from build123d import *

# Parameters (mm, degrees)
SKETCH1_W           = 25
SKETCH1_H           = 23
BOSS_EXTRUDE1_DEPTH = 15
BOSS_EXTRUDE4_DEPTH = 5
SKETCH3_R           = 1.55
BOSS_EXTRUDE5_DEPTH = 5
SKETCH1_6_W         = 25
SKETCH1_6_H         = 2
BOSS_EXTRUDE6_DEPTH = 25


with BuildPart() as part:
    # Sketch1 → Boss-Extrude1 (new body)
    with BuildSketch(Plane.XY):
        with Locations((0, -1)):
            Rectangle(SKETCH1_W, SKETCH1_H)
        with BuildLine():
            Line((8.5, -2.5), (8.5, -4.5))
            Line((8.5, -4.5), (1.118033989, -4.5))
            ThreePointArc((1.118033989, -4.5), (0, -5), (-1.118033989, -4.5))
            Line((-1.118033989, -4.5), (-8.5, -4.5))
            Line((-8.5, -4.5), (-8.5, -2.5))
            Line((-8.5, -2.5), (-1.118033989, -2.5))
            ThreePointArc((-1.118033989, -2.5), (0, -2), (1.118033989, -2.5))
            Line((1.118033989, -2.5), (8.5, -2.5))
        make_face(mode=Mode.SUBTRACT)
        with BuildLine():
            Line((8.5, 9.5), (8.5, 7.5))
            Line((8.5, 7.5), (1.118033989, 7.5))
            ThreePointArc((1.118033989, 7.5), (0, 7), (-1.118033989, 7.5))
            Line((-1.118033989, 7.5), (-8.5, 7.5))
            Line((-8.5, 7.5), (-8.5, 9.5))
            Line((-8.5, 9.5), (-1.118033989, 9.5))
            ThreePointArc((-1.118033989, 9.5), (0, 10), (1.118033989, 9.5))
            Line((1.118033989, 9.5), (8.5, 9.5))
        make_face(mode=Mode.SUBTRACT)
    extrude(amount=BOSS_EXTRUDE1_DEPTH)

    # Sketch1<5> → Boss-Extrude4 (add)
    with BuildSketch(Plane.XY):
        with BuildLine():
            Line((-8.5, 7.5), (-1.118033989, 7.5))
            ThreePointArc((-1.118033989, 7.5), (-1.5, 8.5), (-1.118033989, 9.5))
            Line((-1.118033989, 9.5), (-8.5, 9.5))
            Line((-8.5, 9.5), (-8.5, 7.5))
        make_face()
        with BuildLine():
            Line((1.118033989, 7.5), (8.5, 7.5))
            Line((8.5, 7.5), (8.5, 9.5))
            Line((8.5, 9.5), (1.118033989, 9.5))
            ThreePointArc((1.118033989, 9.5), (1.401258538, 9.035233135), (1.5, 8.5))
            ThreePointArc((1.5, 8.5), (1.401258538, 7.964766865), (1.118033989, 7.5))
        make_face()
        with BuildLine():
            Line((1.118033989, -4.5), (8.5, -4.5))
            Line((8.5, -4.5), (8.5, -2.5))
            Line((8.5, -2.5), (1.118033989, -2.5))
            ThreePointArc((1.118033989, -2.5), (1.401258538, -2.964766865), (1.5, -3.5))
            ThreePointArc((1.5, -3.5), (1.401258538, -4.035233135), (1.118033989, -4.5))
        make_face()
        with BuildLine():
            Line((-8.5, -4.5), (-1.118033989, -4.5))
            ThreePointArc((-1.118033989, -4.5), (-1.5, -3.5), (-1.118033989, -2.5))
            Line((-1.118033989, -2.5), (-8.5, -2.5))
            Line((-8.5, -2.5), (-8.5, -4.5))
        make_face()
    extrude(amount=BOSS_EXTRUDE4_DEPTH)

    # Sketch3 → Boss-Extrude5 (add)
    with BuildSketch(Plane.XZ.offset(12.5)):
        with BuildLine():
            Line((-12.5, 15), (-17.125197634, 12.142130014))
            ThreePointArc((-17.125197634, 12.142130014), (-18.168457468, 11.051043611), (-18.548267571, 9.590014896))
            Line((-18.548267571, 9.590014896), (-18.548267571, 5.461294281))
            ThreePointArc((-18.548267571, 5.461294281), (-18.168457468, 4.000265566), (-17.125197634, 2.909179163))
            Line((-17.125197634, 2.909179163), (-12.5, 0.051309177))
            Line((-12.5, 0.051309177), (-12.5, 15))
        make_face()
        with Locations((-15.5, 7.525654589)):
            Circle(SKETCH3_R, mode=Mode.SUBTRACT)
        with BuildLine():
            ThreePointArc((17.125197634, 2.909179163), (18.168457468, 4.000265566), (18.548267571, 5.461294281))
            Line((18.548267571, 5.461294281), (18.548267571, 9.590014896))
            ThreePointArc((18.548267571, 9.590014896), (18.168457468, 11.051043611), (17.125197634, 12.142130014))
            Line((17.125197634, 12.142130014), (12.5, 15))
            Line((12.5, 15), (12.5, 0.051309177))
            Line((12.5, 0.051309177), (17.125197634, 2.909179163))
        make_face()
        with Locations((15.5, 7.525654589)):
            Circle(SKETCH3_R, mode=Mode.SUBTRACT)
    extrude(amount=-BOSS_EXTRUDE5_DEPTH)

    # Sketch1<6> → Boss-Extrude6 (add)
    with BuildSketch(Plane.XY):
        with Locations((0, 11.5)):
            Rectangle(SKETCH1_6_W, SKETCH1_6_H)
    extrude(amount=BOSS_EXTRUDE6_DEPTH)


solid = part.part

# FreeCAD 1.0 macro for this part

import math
import FreeCAD as App
import Part
import Sketcher
from FreeCAD import Vector

doc = App.newDocument("Part")
params = doc.addObject("Spreadsheet::Sheet", "Params")
for row, (alias, value) in enumerate([
    ("sketch1_radius", "1.5 mm"),
    ("sketch1_width", "25 mm"),
    ("sketch1_height", "23 mm"),
    ("sketch1_height2", "2 mm"),
    ("pad1_length", "15 mm"),
    ("sketch2_radius", "1.5 mm"),
    ("sketch2_height", "2 mm"),
    ("pad2_length", "5 mm"),
    ("sketch3_radius", "3 mm"),
    ("sketch3_diameter", "3.1 mm"),
    ("pad3_length", "5 mm"),
    ("sketch4_width", "25 mm"),
    ("sketch4_height", "2 mm"),
    ("pad4_length", "25 mm"),
], start=1):
    params.set(f"A{row}", alias)
    params.set(f"B{row}", "=" + value)
    params.setAlias(f"B{row}", alias)

body = doc.addObject("PartDesign::Body", "Body")

sketch1 = body.newObject("Sketcher::SketchObject", "Sketch")
sketch1.AttachmentSupport = (doc.getObject("XY_Plane"), [""])
sketch1.MapMode = "FlatFace"
sketch1.addGeometry(Part.LineSegment(Vector(-12.5, 10.5, 0), Vector(-12.5, -12.5, 0)), False)
sketch1.addGeometry(Part.LineSegment(Vector(-12.5, -12.5, 0), Vector(12.5, -12.5, 0)), False)
sketch1.addGeometry(Part.LineSegment(Vector(12.5, -12.5, 0), Vector(12.5, 10.5, 0)), False)
sketch1.addGeometry(Part.LineSegment(Vector(12.5, 10.5, 0), Vector(-12.5, 10.5, 0)), False)
sketch1.addGeometry(Part.LineSegment(Vector(1.1, -2.5, 0), Vector(8.5, -2.5, 0)), False)
sketch1.addGeometry(Part.LineSegment(Vector(8.5, -2.5, 0), Vector(8.5, -4.5, 0)), False)
sketch1.addGeometry(Part.LineSegment(Vector(8.5, -4.5, 0), Vector(1.1, -4.5, 0)), False)
sketch1.addGeometry(Part.ArcOfCircle(Part.Circle(Vector(0, -3.5, 0), Vector(0, 0, 1), 1.5), math.radians(-138), math.radians(-42)), False)
sketch1.addGeometry(Part.LineSegment(Vector(-1.1, -4.5, 0), Vector(-8.5, -4.5, 0)), False)
sketch1.addGeometry(Part.LineSegment(Vector(-8.5, -4.5, 0), Vector(-8.5, -2.5, 0)), False)
sketch1.addGeometry(Part.LineSegment(Vector(-8.5, -2.5, 0), Vector(-1.1, -2.5, 0)), False)
sketch1.addGeometry(Part.ArcOfCircle(Part.Circle(Vector(0, -3.5, 0), Vector(0, 0, 1), 1.5), math.radians(42), math.radians(138)), False)
sketch1.addGeometry(Part.LineSegment(Vector(1.1, 9.5, 0), Vector(8.5, 9.5, 0)), False)
sketch1.addGeometry(Part.LineSegment(Vector(8.5, 9.5, 0), Vector(8.5, 7.5, 0)), False)
sketch1.addGeometry(Part.LineSegment(Vector(8.5, 7.5, 0), Vector(1.1, 7.5, 0)), False)
sketch1.addGeometry(Part.ArcOfCircle(Part.Circle(Vector(0, 8.5, 0), Vector(0, 0, 1), 1.5), math.radians(-138), math.radians(-42)), False)
sketch1.addGeometry(Part.LineSegment(Vector(-1.1, 7.5, 0), Vector(-8.5, 7.5, 0)), False)
sketch1.addGeometry(Part.LineSegment(Vector(-8.5, 7.5, 0), Vector(-8.5, 9.5, 0)), False)
sketch1.addGeometry(Part.LineSegment(Vector(-8.5, 9.5, 0), Vector(-1.1, 9.5, 0)), False)
sketch1.addGeometry(Part.ArcOfCircle(Part.Circle(Vector(0, 8.5, 0), Vector(0, 0, 1), 1.5), math.radians(42), math.radians(138)), False)
sketch1.addConstraint(Sketcher.Constraint("Coincident", 0, 2, 1, 1))
sketch1.addConstraint(Sketcher.Constraint("Coincident", 1, 2, 2, 1))
sketch1.addConstraint(Sketcher.Constraint("Coincident", 2, 2, 3, 1))
sketch1.addConstraint(Sketcher.Constraint("Coincident", 3, 2, 0, 1))
sketch1.addConstraint(Sketcher.Constraint("Coincident", 4, 2, 5, 1))
sketch1.addConstraint(Sketcher.Constraint("Coincident", 5, 2, 6, 1))
sketch1.addConstraint(Sketcher.Constraint("Coincident", 6, 2, 7, 2))
sketch1.addConstraint(Sketcher.Constraint("Coincident", 7, 1, 8, 1))
sketch1.addConstraint(Sketcher.Constraint("Coincident", 8, 2, 9, 1))
sketch1.addConstraint(Sketcher.Constraint("Coincident", 9, 2, 10, 1))
sketch1.addConstraint(Sketcher.Constraint("Coincident", 10, 2, 11, 2))
sketch1.addConstraint(Sketcher.Constraint("Coincident", 11, 1, 4, 1))
sketch1.addConstraint(Sketcher.Constraint("Coincident", 12, 2, 13, 1))
sketch1.addConstraint(Sketcher.Constraint("Coincident", 13, 2, 14, 1))
sketch1.addConstraint(Sketcher.Constraint("Coincident", 14, 2, 15, 2))
sketch1.addConstraint(Sketcher.Constraint("Coincident", 15, 1, 16, 1))
sketch1.addConstraint(Sketcher.Constraint("Coincident", 16, 2, 17, 1))
sketch1.addConstraint(Sketcher.Constraint("Coincident", 17, 2, 18, 1))
sketch1.addConstraint(Sketcher.Constraint("Coincident", 18, 2, 19, 2))
sketch1.addConstraint(Sketcher.Constraint("Coincident", 19, 1, 12, 1))
sketch1.addConstraint(Sketcher.Constraint("Vertical", 0))
sketch1.addConstraint(Sketcher.Constraint("Horizontal", 1))
sketch1.addConstraint(Sketcher.Constraint("Vertical", 2))
sketch1.addConstraint(Sketcher.Constraint("Horizontal", 3))
sketch1.addConstraint(Sketcher.Constraint("Horizontal", 4))
sketch1.addConstraint(Sketcher.Constraint("Vertical", 5))
sketch1.addConstraint(Sketcher.Constraint("Horizontal", 6))
sketch1.addConstraint(Sketcher.Constraint("Horizontal", 8))
sketch1.addConstraint(Sketcher.Constraint("Vertical", 9))
sketch1.addConstraint(Sketcher.Constraint("Horizontal", 10))
sketch1.addConstraint(Sketcher.Constraint("Horizontal", 12))
sketch1.addConstraint(Sketcher.Constraint("Vertical", 13))
sketch1.addConstraint(Sketcher.Constraint("Horizontal", 14))
sketch1.addConstraint(Sketcher.Constraint("Horizontal", 16))
sketch1.addConstraint(Sketcher.Constraint("Vertical", 17))
sketch1.addConstraint(Sketcher.Constraint("Horizontal", 18))
sketch1.addConstraint(Sketcher.Constraint("Coincident", 11, 3, 7, 3))
sketch1.addConstraint(Sketcher.Constraint("Coincident", 19, 3, 15, 3))
sketch1.addConstraint(Sketcher.Constraint("Equal", 7, 11))
sketch1.addConstraint(Sketcher.Constraint("Equal", 11, 15))
sketch1.addConstraint(Sketcher.Constraint("Equal", 15, 19))
sketch1.addConstraint(Sketcher.Constraint("Symmetric", 6, 2, 7, 1, -2))
sketch1.addConstraint(Sketcher.Constraint("Symmetric", 4, 2, 9, 2, -2))
sketch1.addConstraint(Sketcher.Constraint("Symmetric", 14, 2, 15, 1, -2))
sketch1.addConstraint(Sketcher.Constraint("Symmetric", 12, 2, 17, 2, -2))
sketch1.addConstraint(Sketcher.Constraint("Vertical", 7, 1, 10, 2))
sketch1.addConstraint(Sketcher.Constraint("Vertical", 5, 2, 12, 2))
sketch1.addConstraint(Sketcher.Constraint("Vertical", 11, 1, 14, 2))
sketch1.addConstraint(Sketcher.Constraint("Vertical", 15, 1, 18, 2))
sketch1.addConstraint(Sketcher.Constraint("Radius", 7, 1.5))
sketch1.addConstraint(Sketcher.Constraint("DistanceX", 1, 1, 1, 2, 25.0))
sketch1.addConstraint(Sketcher.Constraint("DistanceY", 0, 2, 0, 1, 23.0))
sketch1.addConstraint(Sketcher.Constraint("DistanceY", 5, 2, 5, 1, 2.0))
sketch1.addConstraint(Sketcher.Constraint("DistanceY", 7, 3, 15, 3, 12.0))
sketch1.addConstraint(Sketcher.Constraint("DistanceY", 0, 2, 11, 3, 9.0))
sketch1.addConstraint(Sketcher.Constraint("DistanceX", 4, 2, 1, 2, 4.0))
sketch1.addConstraint(Sketcher.Constraint("DistanceX", 0, 2, 8, 2, 4.0))
sketch1.addConstraint(Sketcher.Constraint("DistanceY", 7, 3, -1, 1, 3.5))
sketch1.setExpression("Constraints[49]", "Params.sketch1_radius")
sketch1.setExpression("Constraints[50]", "Params.sketch1_width")
sketch1.setExpression("Constraints[51]", "Params.sketch1_height")
sketch1.setExpression("Constraints[52]", "Params.sketch1_height2")
pad1 = body.newObject("PartDesign::Pad", "Pad")
pad1.Profile = sketch1
pad1.setExpression("Length", "Params.pad1_length")

sketch2 = body.newObject("Sketcher::SketchObject", "Sketch001")
sketch2.AttachmentSupport = (doc.getObject("XY_Plane"), [""])
sketch2.MapMode = "FlatFace"
sketch2.addGeometry(Part.LineSegment(Vector(-8.5, 7.5, 0), Vector(-1.1, 7.5, 0)), False)
sketch2.addGeometry(Part.ArcOfCircle(Part.Circle(Vector(0, 8.5, 0), Vector(0, 0, 1), 1.5), math.radians(138), math.radians(222)), False)
sketch2.addGeometry(Part.LineSegment(Vector(-1.1, 9.5, 0), Vector(-8.5, 9.5, 0)), False)
sketch2.addGeometry(Part.LineSegment(Vector(-8.5, 9.5, 0), Vector(-8.5, 7.5, 0)), False)
sketch2.addGeometry(Part.LineSegment(Vector(1.1, 7.5, 0), Vector(8.5, 7.5, 0)), False)
sketch2.addGeometry(Part.LineSegment(Vector(8.5, 7.5, 0), Vector(8.5, 9.5, 0)), False)
sketch2.addGeometry(Part.LineSegment(Vector(8.5, 9.5, 0), Vector(1.1, 9.5, 0)), False)
sketch2.addGeometry(Part.ArcOfCircle(Part.Circle(Vector(0, 8.5, 0), Vector(0, 0, 1), 1.5), math.radians(0), math.radians(42)), False)
sketch2.addGeometry(Part.ArcOfCircle(Part.Circle(Vector(0, 8.5, 0), Vector(0, 0, 1), 1.5), math.radians(-42), math.radians(0)), False)
sketch2.addGeometry(Part.LineSegment(Vector(1.1, -4.5, 0), Vector(8.5, -4.5, 0)), False)
sketch2.addGeometry(Part.LineSegment(Vector(8.5, -4.5, 0), Vector(8.5, -2.5, 0)), False)
sketch2.addGeometry(Part.LineSegment(Vector(8.5, -2.5, 0), Vector(1.1, -2.5, 0)), False)
sketch2.addGeometry(Part.ArcOfCircle(Part.Circle(Vector(0, -3.5, 0), Vector(0, 0, 1), 1.5), math.radians(0), math.radians(42)), False)
sketch2.addGeometry(Part.ArcOfCircle(Part.Circle(Vector(0, -3.5, 0), Vector(0, 0, 1), 1.5), math.radians(-42), math.radians(0)), False)
sketch2.addGeometry(Part.LineSegment(Vector(-8.5, -4.5, 0), Vector(-1.1, -4.5, 0)), False)
sketch2.addGeometry(Part.ArcOfCircle(Part.Circle(Vector(0, -3.5, 0), Vector(0, 0, 1), 1.5), math.radians(138), math.radians(222)), False)
sketch2.addGeometry(Part.LineSegment(Vector(-1.1, -2.5, 0), Vector(-8.5, -2.5, 0)), False)
sketch2.addGeometry(Part.LineSegment(Vector(-8.5, -2.5, 0), Vector(-8.5, -4.5, 0)), False)
sketch2.addConstraint(Sketcher.Constraint("Coincident", 0, 2, 1, 2))
sketch2.addConstraint(Sketcher.Constraint("Coincident", 1, 1, 2, 1))
sketch2.addConstraint(Sketcher.Constraint("Coincident", 2, 2, 3, 1))
sketch2.addConstraint(Sketcher.Constraint("Coincident", 3, 2, 0, 1))
sketch2.addConstraint(Sketcher.Constraint("Coincident", 4, 2, 5, 1))
sketch2.addConstraint(Sketcher.Constraint("Coincident", 5, 2, 6, 1))
sketch2.addConstraint(Sketcher.Constraint("Coincident", 6, 2, 7, 2))
sketch2.addConstraint(Sketcher.Constraint("Tangent", 7, 1, 8, 2))
sketch2.addConstraint(Sketcher.Constraint("Coincident", 8, 1, 4, 1))
sketch2.addConstraint(Sketcher.Constraint("Coincident", 9, 2, 10, 1))
sketch2.addConstraint(Sketcher.Constraint("Coincident", 10, 2, 11, 1))
sketch2.addConstraint(Sketcher.Constraint("Coincident", 11, 2, 12, 2))
sketch2.addConstraint(Sketcher.Constraint("Tangent", 12, 1, 13, 2))
sketch2.addConstraint(Sketcher.Constraint("Coincident", 13, 1, 9, 1))
sketch2.addConstraint(Sketcher.Constraint("Coincident", 14, 2, 15, 2))
sketch2.addConstraint(Sketcher.Constraint("Coincident", 15, 1, 16, 1))
sketch2.addConstraint(Sketcher.Constraint("Coincident", 16, 2, 17, 1))
sketch2.addConstraint(Sketcher.Constraint("Coincident", 17, 2, 14, 1))
sketch2.addConstraint(Sketcher.Constraint("Horizontal", 0))
sketch2.addConstraint(Sketcher.Constraint("Horizontal", 2))
sketch2.addConstraint(Sketcher.Constraint("Vertical", 3))
sketch2.addConstraint(Sketcher.Constraint("Horizontal", 4))
sketch2.addConstraint(Sketcher.Constraint("Vertical", 5))
sketch2.addConstraint(Sketcher.Constraint("Horizontal", 6))
sketch2.addConstraint(Sketcher.Constraint("Horizontal", 9))
sketch2.addConstraint(Sketcher.Constraint("Vertical", 10))
sketch2.addConstraint(Sketcher.Constraint("Horizontal", 11))
sketch2.addConstraint(Sketcher.Constraint("Horizontal", 14))
sketch2.addConstraint(Sketcher.Constraint("Horizontal", 16))
sketch2.addConstraint(Sketcher.Constraint("Vertical", 17))
sketch2.addConstraint(Sketcher.Constraint("Coincident", 7, 3, 1, 3))
sketch2.addConstraint(Sketcher.Constraint("Coincident", 15, 3, 12, 3))
sketch2.addConstraint(Sketcher.Constraint("Equal", 1, 7))
sketch2.addConstraint(Sketcher.Constraint("Equal", 7, 8))
sketch2.addConstraint(Sketcher.Constraint("Equal", 8, 12))
sketch2.addConstraint(Sketcher.Constraint("Equal", 12, 13))
sketch2.addConstraint(Sketcher.Constraint("Equal", 13, 15))
sketch2.addConstraint(Sketcher.Constraint("Symmetric", 3, 2, 4, 2, -2))
sketch2.addConstraint(Sketcher.Constraint("Symmetric", 1, 1, 6, 2, -2))
sketch2.addConstraint(Sketcher.Constraint("Symmetric", 13, 1, 14, 2, -2))
sketch2.addConstraint(Sketcher.Constraint("Symmetric", 10, 2, 16, 2, -2))
sketch2.addConstraint(Sketcher.Constraint("Horizontal", 8, 3, 7, 1))
sketch2.addConstraint(Sketcher.Constraint("Horizontal", 15, 3, 12, 1))
sketch2.addConstraint(Sketcher.Constraint("Vertical", 0, 2, 1, 1))
sketch2.addConstraint(Sketcher.Constraint("Vertical", 5, 2, 9, 2))
sketch2.addConstraint(Sketcher.Constraint("Vertical", 8, 1, 11, 2))
sketch2.addConstraint(Sketcher.Constraint("Vertical", 11, 2, 13, 1))
sketch2.addConstraint(Sketcher.Constraint("Radius", 1, 1.5))
sketch2.addConstraint(Sketcher.Constraint("DistanceY", 3, 2, 3, 1, 2.0))
sketch2.addConstraint(Sketcher.Constraint("DistanceY", 12, 3, 7, 3, 12.0))
sketch2.addConstraint(Sketcher.Constraint("DistanceX", 12, 1, 9, 2, 7.0))
sketch2.addConstraint(Sketcher.Constraint("DistanceY", -1, 1, 1, 3, 8.5))
sketch2.setExpression("Constraints[47]", "Params.sketch2_radius")
sketch2.setExpression("Constraints[48]", "Params.sketch2_height")
pad2 = body.newObject("PartDesign::Pad", "Pad001")
pad2.Profile = sketch2
pad2.setExpression("Length", "Params.pad2_length")

sketch3 = body.newObject("Sketcher::SketchObject", "Sketch002")
sketch3.AttachmentSupport = (doc.getObject("XZ_Plane"), [""])
sketch3.MapMode = "FlatFace"
sketch3.AttachmentOffset = App.Placement(Vector(0, 0, 12.5), App.Rotation())
sketch3.addGeometry(Part.LineSegment(Vector(-12.5, 15, 0), Vector(-17.1, 12.1, 0)), False)
sketch3.addGeometry(Part.ArcOfCircle(Part.Circle(Vector(-15.5, 9.6, 0), Vector(0, 0, 1), 3), math.radians(122), math.radians(180)), False)
sketch3.addGeometry(Part.LineSegment(Vector(-18.5, 9.6, 0), Vector(-18.5, 5.5, 0)), False)
sketch3.addGeometry(Part.ArcOfCircle(Part.Circle(Vector(-15.5, 5.5, 0), Vector(0, 0, 1), 3), math.radians(180), math.radians(238)), False)
sketch3.addGeometry(Part.LineSegment(Vector(-17.1, 2.9, 0), Vector(-12.5, 0.1, 0)), False)
sketch3.addGeometry(Part.LineSegment(Vector(-12.5, 0.1, 0), Vector(-12.5, 15, 0)), False)
sketch3.addGeometry(Part.Circle(Vector(-15.5, 7.5, 0), Vector(0, 0, 1), 1.6), False)
sketch3.addGeometry(Part.ArcOfCircle(Part.Circle(Vector(15.5, 5.5, 0), Vector(0, 0, 1), 3), math.radians(-58), math.radians(0)), False)
sketch3.addGeometry(Part.LineSegment(Vector(18.5, 5.5, 0), Vector(18.5, 9.6, 0)), False)
sketch3.addGeometry(Part.ArcOfCircle(Part.Circle(Vector(15.5, 9.6, 0), Vector(0, 0, 1), 3), math.radians(0), math.radians(58)), False)
sketch3.addGeometry(Part.LineSegment(Vector(17.1, 12.1, 0), Vector(12.5, 15, 0)), False)
sketch3.addGeometry(Part.LineSegment(Vector(12.5, 15, 0), Vector(12.5, 0.1, 0)), False)
sketch3.addGeometry(Part.LineSegment(Vector(12.5, 0.1, 0), Vector(17.1, 2.9, 0)), False)
sketch3.addGeometry(Part.Circle(Vector(15.5, 7.5, 0), Vector(0, 0, 1), 1.6), False)
sketch3.addConstraint(Sketcher.Constraint("Tangent", 0, 2, 1, 1))
sketch3.addConstraint(Sketcher.Constraint("Tangent", 1, 2, 2, 1))
sketch3.addConstraint(Sketcher.Constraint("Tangent", 2, 2, 3, 1))
sketch3.addConstraint(Sketcher.Constraint("Tangent", 3, 2, 4, 1))
sketch3.addConstraint(Sketcher.Constraint("Coincident", 4, 2, 5, 1))
sketch3.addConstraint(Sketcher.Constraint("Coincident", 5, 2, 0, 1))
sketch3.addConstraint(Sketcher.Constraint("Tangent", 7, 2, 8, 1))
sketch3.addConstraint(Sketcher.Constraint("Tangent", 8, 2, 9, 1))
sketch3.addConstraint(Sketcher.Constraint("Tangent", 9, 2, 10, 1))
sketch3.addConstraint(Sketcher.Constraint("Coincident", 10, 2, 11, 1))
sketch3.addConstraint(Sketcher.Constraint("Coincident", 11, 2, 12, 1))
sketch3.addConstraint(Sketcher.Constraint("Tangent", 12, 2, 7, 1))
sketch3.addConstraint(Sketcher.Constraint("Vertical", 2))
sketch3.addConstraint(Sketcher.Constraint("Vertical", 5))
sketch3.addConstraint(Sketcher.Constraint("Vertical", 8))
sketch3.addConstraint(Sketcher.Constraint("Vertical", 11))
sketch3.addConstraint(Sketcher.Constraint("Equal", 1, 3))
sketch3.addConstraint(Sketcher.Constraint("Equal", 3, 7))
sketch3.addConstraint(Sketcher.Constraint("Equal", 7, 9))
sketch3.addConstraint(Sketcher.Constraint("Equal", 6, 13))
sketch3.addConstraint(Sketcher.Constraint("Symmetric", 3, 3, 7, 3, -2))
sketch3.addConstraint(Sketcher.Constraint("Symmetric", 6, 3, 13, 3, -2))
sketch3.addConstraint(Sketcher.Constraint("Symmetric", 0, 2, 9, 2, -2))
sketch3.addConstraint(Sketcher.Constraint("Symmetric", 4, 2, 11, 2, -2))
sketch3.addConstraint(Sketcher.Constraint("Parallel", 4, 10))
sketch3.addConstraint(Sketcher.Constraint("Radius", 1, 3.0))
sketch3.addConstraint(Sketcher.Constraint("Diameter", 6, 3.1))
sketch3.addConstraint(Sketcher.Constraint("DistanceY", -1, 1, 5, 2, 15.0))
sketch3.addConstraint(Sketcher.Constraint("DistanceX", 6, 3, 13, 3, 31.0))
sketch3.addConstraint(Sketcher.Constraint("DistanceX", 6, 3, 4, 2, 3.0))
sketch3.addConstraint(Sketcher.Constraint("Distance", 0, 5.436899))
sketch3.addConstraint(Sketcher.Constraint("DistanceY", 2, 2, 2, 1, 4.128721))
sketch3.addConstraint(Sketcher.Constraint("DistanceY", 5, 1, 5, 2, 14.948691))
sketch3.addConstraint(Sketcher.Constraint("DistanceY", 6, 3, 1, 3, 2.06436))
sketch3.setExpression("Constraints[25]", "Params.sketch3_radius")
sketch3.setExpression("Constraints[26]", "Params.sketch3_diameter")
pad3 = body.newObject("PartDesign::Pad", "Pad002")
pad3.Profile = sketch3
pad3.setExpression("Length", "Params.pad3_length")
pad3.Reversed = True

sketch4 = body.newObject("Sketcher::SketchObject", "Sketch003")
sketch4.AttachmentSupport = (doc.getObject("XY_Plane"), [""])
sketch4.MapMode = "FlatFace"
sketch4.addGeometry(Part.LineSegment(Vector(-12.5, 12.5, 0), Vector(-12.5, 10.5, 0)), False)
sketch4.addGeometry(Part.LineSegment(Vector(-12.5, 10.5, 0), Vector(12.5, 10.5, 0)), False)
sketch4.addGeometry(Part.LineSegment(Vector(12.5, 10.5, 0), Vector(12.5, 12.5, 0)), False)
sketch4.addGeometry(Part.LineSegment(Vector(12.5, 12.5, 0), Vector(-12.5, 12.5, 0)), False)
sketch4.addConstraint(Sketcher.Constraint("Coincident", 0, 2, 1, 1))
sketch4.addConstraint(Sketcher.Constraint("Coincident", 1, 2, 2, 1))
sketch4.addConstraint(Sketcher.Constraint("Coincident", 2, 2, 3, 1))
sketch4.addConstraint(Sketcher.Constraint("Coincident", 3, 2, 0, 1))
sketch4.addConstraint(Sketcher.Constraint("Vertical", 0))
sketch4.addConstraint(Sketcher.Constraint("Horizontal", 1))
sketch4.addConstraint(Sketcher.Constraint("Vertical", 2))
sketch4.addConstraint(Sketcher.Constraint("Horizontal", 3))
sketch4.addConstraint(Sketcher.Constraint("DistanceX", 1, 1, 1, 2, 25.0))
sketch4.addConstraint(Sketcher.Constraint("DistanceY", 0, 2, 0, 1, 2.0))
sketch4.addConstraint(Sketcher.Constraint("DistanceX", 0, 2, -1, 1, 12.5))
sketch4.addConstraint(Sketcher.Constraint("DistanceY", -1, 1, 0, 2, 10.5))
sketch4.setExpression("Constraints[8]", "Params.sketch4_width")
sketch4.setExpression("Constraints[9]", "Params.sketch4_height")
pad4 = body.newObject("PartDesign::Pad", "Pad003")
pad4.Profile = sketch4
pad4.setExpression("Length", "Params.pad4_length")

doc.recompute()
